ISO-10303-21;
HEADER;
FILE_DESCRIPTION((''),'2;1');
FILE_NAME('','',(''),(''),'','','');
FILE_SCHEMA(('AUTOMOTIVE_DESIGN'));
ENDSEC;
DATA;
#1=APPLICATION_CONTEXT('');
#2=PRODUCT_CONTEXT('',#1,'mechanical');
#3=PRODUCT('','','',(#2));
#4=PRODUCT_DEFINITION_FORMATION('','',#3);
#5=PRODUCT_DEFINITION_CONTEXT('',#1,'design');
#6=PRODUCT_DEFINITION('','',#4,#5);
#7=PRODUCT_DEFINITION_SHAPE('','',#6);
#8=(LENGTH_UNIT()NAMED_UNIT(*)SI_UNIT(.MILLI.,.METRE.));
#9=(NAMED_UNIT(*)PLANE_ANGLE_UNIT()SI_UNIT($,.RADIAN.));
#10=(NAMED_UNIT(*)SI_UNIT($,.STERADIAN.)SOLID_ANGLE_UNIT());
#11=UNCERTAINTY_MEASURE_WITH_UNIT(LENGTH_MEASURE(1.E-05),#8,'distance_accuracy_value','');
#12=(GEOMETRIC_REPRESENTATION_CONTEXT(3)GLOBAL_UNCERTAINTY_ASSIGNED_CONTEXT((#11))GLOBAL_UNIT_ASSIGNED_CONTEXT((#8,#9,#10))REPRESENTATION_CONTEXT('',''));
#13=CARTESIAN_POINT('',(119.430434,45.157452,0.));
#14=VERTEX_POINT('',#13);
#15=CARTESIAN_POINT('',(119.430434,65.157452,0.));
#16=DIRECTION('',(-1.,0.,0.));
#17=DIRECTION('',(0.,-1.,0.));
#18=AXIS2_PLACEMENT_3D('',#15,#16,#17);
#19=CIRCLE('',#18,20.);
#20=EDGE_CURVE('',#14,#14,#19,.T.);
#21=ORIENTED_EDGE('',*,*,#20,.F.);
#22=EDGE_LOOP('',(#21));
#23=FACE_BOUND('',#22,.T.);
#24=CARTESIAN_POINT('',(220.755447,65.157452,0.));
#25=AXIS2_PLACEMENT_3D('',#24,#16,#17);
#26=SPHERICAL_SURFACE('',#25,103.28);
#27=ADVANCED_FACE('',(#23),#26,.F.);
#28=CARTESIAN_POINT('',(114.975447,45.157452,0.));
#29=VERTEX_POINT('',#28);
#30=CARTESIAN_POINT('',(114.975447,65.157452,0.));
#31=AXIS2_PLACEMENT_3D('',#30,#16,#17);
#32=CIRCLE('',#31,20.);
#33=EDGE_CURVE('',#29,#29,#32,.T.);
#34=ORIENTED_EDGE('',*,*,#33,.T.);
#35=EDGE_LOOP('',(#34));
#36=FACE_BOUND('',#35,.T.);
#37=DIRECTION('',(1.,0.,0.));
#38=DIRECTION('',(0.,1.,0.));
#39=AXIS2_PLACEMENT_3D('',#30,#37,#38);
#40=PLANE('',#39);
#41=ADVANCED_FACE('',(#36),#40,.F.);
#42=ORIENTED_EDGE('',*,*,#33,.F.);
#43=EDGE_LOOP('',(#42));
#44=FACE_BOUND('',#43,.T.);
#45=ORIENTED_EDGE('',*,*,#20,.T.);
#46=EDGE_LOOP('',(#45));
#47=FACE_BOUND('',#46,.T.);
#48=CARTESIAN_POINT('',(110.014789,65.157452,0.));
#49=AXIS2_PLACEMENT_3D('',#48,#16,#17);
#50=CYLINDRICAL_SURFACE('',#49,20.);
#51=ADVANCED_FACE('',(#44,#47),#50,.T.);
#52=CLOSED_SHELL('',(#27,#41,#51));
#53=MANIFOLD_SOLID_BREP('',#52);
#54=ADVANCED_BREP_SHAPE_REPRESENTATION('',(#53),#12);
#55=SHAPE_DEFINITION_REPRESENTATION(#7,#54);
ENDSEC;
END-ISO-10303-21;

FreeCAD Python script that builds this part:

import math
import FreeCAD as App
import Part
import Sketcher

V = App.Vector
Q = App.Units.Quantity

doc = App.newDocument("Part")
body = doc.addObject("PartDesign::Body", "Body")

# Sketch on XY plane
sketch1 = doc.addObject("Sketcher::SketchObject", "Sketch")
body.addObject(sketch1)
sketch1.AttachmentSupport = (doc.XY_Plane, [""])
sketch1.MapMode = "FlatFace"
sketch1.addGeometry(Part.LineSegment(V(115, 85.2, 0), V(115, 65.2, 0)), False)
sketch1.addGeometry(Part.LineSegment(V(115, 65.2, 0), V(117.5, 65.2, 0)), False)
sketch1.addGeometry(Part.ArcOfCircle(Part.Circle(V(220.8, 65.2, 0), V(0, 0, 1), 103.3), math.radians(168.83), math.radians(180)), False)
sketch1.addGeometry(Part.LineSegment(V(119.4, 85.2, 0), V(115, 85.2, 0)), False)
sketch1.addGeometry(Part.LineSegment(V(115, 65.2, 0), V(220.8, 65.2, 0)), True)  # axis
sketch1.addConstraint(Sketcher.Constraint("Coincident", 0, 2, 1, 1))
sketch1.addConstraint(Sketcher.Constraint("Coincident", 1, 2, 2, 2))
sketch1.addConstraint(Sketcher.Constraint("Coincident", 2, 1, 3, 1))
sketch1.addConstraint(Sketcher.Constraint("Coincident", 3, 2, 0, 1))
sketch1.addConstraint(Sketcher.Constraint("Vertical", 0))
sketch1.addConstraint(Sketcher.Constraint("Horizontal", 1))
sketch1.addConstraint(Sketcher.Constraint("Horizontal", 3))
sketch1.addConstraint(Sketcher.Constraint("Horizontal", 4))
sketch1.addConstraint(Sketcher.Constraint("Coincident", 4, 1, 0, 2))
sketch1.addConstraint(Sketcher.Constraint("Coincident", 4, 2, 2, 3))
sketch1.addConstraint(Sketcher.Constraint("DistanceY", 0, 2, 0, 1, Q("20 mm")))
sketch1.addConstraint(Sketcher.Constraint("Radius", 2, Q("103.28 mm")))
sketch1.addConstraint(Sketcher.Constraint("DistanceX", 1, 1, 1, 2, Q("2.5 mm")))
sketch1.addConstraint(Sketcher.Constraint("DistanceY", -1, 1, 2, 3, Q("65.157452 mm")))
sketch1.addConstraint(Sketcher.Constraint("DistanceX", -1, 1, 2, 3, Q("220.755447 mm")))
revolution = doc.addObject("PartDesign::Revolution", "Revolution")
body.addObject(revolution)
revolution.Profile = sketch1
revolution.ReferenceAxis = (sketch1, ["Axis0"])
revolution.Angle = 360

doc.recompute()
